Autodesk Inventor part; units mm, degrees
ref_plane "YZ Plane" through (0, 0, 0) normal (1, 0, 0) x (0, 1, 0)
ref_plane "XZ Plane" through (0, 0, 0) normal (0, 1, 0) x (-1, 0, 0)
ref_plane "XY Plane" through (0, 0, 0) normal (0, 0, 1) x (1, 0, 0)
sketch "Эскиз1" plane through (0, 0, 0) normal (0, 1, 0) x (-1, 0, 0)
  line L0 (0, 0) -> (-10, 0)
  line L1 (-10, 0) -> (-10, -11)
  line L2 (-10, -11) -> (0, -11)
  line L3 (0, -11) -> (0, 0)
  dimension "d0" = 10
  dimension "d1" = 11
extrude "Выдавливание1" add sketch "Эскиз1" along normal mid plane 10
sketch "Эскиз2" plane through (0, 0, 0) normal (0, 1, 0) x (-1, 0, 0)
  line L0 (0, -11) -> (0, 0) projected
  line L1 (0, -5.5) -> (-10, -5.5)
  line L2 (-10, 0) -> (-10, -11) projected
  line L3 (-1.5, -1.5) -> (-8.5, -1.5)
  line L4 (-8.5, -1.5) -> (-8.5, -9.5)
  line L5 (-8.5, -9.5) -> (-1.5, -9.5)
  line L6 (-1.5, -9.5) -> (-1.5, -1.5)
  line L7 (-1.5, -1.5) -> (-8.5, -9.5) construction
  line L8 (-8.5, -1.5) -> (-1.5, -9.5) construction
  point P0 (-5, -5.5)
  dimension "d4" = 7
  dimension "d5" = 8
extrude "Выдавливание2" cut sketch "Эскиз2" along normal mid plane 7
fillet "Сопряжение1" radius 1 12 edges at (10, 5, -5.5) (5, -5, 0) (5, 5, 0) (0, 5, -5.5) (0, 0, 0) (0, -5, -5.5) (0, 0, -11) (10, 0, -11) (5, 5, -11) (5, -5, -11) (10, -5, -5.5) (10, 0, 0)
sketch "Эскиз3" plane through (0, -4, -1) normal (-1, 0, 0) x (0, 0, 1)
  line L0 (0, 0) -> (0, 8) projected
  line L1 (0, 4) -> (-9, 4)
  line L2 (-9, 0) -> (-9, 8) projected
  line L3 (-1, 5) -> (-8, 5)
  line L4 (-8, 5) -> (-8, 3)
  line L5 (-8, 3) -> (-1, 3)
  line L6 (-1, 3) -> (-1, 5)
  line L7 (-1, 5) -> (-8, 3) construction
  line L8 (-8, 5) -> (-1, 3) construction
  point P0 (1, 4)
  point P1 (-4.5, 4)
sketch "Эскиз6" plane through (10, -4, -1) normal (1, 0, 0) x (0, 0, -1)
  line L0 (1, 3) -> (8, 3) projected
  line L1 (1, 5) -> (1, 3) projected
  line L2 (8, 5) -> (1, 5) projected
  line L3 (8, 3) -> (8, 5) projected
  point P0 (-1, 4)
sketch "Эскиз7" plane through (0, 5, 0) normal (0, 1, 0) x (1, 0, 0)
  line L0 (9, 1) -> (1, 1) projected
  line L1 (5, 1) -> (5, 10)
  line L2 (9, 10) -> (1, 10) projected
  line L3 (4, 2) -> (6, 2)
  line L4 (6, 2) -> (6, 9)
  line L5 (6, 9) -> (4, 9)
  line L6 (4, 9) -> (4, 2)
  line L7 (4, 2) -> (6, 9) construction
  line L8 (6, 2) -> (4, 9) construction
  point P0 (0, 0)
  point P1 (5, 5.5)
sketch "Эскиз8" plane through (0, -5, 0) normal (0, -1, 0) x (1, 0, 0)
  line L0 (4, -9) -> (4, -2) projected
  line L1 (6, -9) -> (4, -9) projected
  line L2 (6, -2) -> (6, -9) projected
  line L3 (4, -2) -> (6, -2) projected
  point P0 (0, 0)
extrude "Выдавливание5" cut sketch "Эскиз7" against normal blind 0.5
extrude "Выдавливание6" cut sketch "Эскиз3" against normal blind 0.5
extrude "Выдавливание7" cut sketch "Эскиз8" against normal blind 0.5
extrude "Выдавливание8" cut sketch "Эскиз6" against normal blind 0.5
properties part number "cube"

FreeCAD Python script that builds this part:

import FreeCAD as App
import Part
import Sketcher
from FreeCAD import Vector
Q = App.Units.Quantity


def edges_at(feature, points):
    """Names of the edges that pass closest to the given points."""
    edges = feature.Shape.Edges
    near = lambda p: min(range(len(edges)), key=lambda i: edges[i].distToShape(Part.Vertex(*p))[0])
    return sorted({f"Edge{near(p) + 1}" for p in points})


def add_polygon(sketch, points):
    """Adds a closed chain of lines whose ends are joined by coincident constraints."""
    first, n = sketch.GeometryCount, len(points)
    for a, b in zip(points, points[1:] + points[:1]):
        sketch.addGeometry(Part.LineSegment(App.Vector(*a, 0), App.Vector(*b, 0)), False)
    for i in range(n):
        sketch.addConstraint(Sketcher.Constraint("Coincident", first + i, 2, first + (i + 1) % n, 1))

doc = App.newDocument("Part")
body = doc.addObject("PartDesign::Body", "Body")

# Sketch on XZ plane
sketch1 = doc.addObject("Sketcher::SketchObject", "Sketch")
body.addObject(sketch1)
sketch1.AttachmentSupport = (doc.XZ_Plane, [""])
sketch1.MapMode = "FlatFace"
add_polygon(sketch1, [(0, -11), (0, 0), (10, 0), (10, -11)])  # lines 0-3
sketch1.addConstraint(Sketcher.Constraint("Vertical", 0))
sketch1.addConstraint(Sketcher.Constraint("Horizontal", 1))
sketch1.addConstraint(Sketcher.Constraint("Vertical", 2))
sketch1.addConstraint(Sketcher.Constraint("Horizontal", 3))
sketch1.addConstraint(Sketcher.Constraint("Coincident", 0, 2, -1, 1))
sketch1.addConstraint(Sketcher.Constraint("DistanceX", 1, 1, 1, 2, Q("10 mm")))
sketch1.addConstraint(Sketcher.Constraint("DistanceY", 0, 1, 0, 2, Q("11 mm")))
pad1 = doc.addObject("PartDesign::Pad", "Pad")
body.addObject(pad1)
pad1.Profile = sketch1
pad1.Length = 10
pad1.Midplane = True

# Sketch on XZ plane
sketch2 = doc.addObject("Sketcher::SketchObject", "Sketch001")
body.addObject(sketch2)
sketch2.AttachmentSupport = (doc.XZ_Plane, [""])
sketch2.MapMode = "FlatFace"
add_polygon(sketch2, [(2, -10), (2, -2), (8, -2), (8, -10)])  # lines 0-3
sketch2.addConstraint(Sketcher.Constraint("Vertical", 0))
sketch2.addConstraint(Sketcher.Constraint("Horizontal", 1))
sketch2.addConstraint(Sketcher.Constraint("Vertical", 2))
sketch2.addConstraint(Sketcher.Constraint("Horizontal", 3))
sketch2.addConstraint(Sketcher.Constraint("DistanceX", 1, 1, 1, 2, Q("7 mm")))
sketch2.addConstraint(Sketcher.Constraint("DistanceY", 0, 1, 0, 2, Q("8 mm")))
sketch2.addConstraint(Sketcher.Constraint("DistanceX", -1, 1, 0, 2, Q("1.5 mm")))
sketch2.addConstraint(Sketcher.Constraint("DistanceY", 0, 2, -1, 1, Q("1.5 mm")))
pocket1 = doc.addObject("PartDesign::Pocket", "Pocket")
body.addObject(pocket1)
pocket1.Profile = sketch2
pocket1.Length = 7
pocket1.Midplane = True
doc.recompute()

fillet = doc.addObject("PartDesign::Fillet", "Fillet")
body.addObject(fillet)
fillet.Base = (pocket1, edges_at(pocket1, [
    (10, 5, -5.5),
    (5, -5, 0),
    (5, 5, 0),
    (0, 5, -5.5),
    (0, 0, 0),
    (0, -5, -5.5),
    (0, 0, -11),
    (10, 0, -11),
    (5, 5, -11),
    (5, -5, -11),
    (10, -5, -5.5),
    (10, 0, 0),
]))
fillet.Radius = 1

# Sketch on XZ plane
sketch3 = doc.addObject("Sketcher::SketchObject", "Sketch002")
body.addObject(sketch3)
sketch3.AttachmentSupport = (doc.XZ_Plane, [""])
sketch3.MapMode = "FlatFace"
sketch3.AttachmentOffset = App.Placement(Vector(0, 0, -5), App.Rotation())
add_polygon(sketch3, [(4, -2), (6, -2), (6, -9), (4, -9)])  # lines 0-3
sketch3.addConstraint(Sketcher.Constraint("Horizontal", 0))
sketch3.addConstraint(Sketcher.Constraint("Vertical", 1))
sketch3.addConstraint(Sketcher.Constraint("Horizontal", 2))
sketch3.addConstraint(Sketcher.Constraint("Vertical", 3))
sketch3.addConstraint(Sketcher.Constraint("DistanceX", 0, 1, 0, 2, Q("2 mm")))
sketch3.addConstraint(Sketcher.Constraint("DistanceY", 1, 2, 1, 1, Q("7 mm")))
sketch3.addConstraint(Sketcher.Constraint("DistanceX", -1, 1, 0, 2, Q("6 mm")))
sketch3.addConstraint(Sketcher.Constraint("DistanceY", 0, 2, -1, 1, Q("2 mm")))
pocket2 = doc.addObject("PartDesign::Pocket", "Pocket001")
body.addObject(pocket2)
pocket2.Profile = sketch3
pocket2.Length = 0.5
pocket2.Reversed = True

# Sketch on YZ plane
sketch4 = doc.addObject("Sketcher::SketchObject", "Sketch003")
body.addObject(sketch4)
sketch4.AttachmentSupport = (doc.YZ_Plane, [""])
sketch4.MapMode = "FlatFace"
add_polygon(sketch4, [(-1, -2), (1, -2), (1, -9), (-1, -9)])  # lines 0-3
sketch4.addConstraint(Sketcher.Constraint("Horizontal", 0))
sketch4.addConstraint(Sketcher.Constraint("Vertical", 1))
sketch4.addConstraint(Sketcher.Constraint("Horizontal", 2))
sketch4.addConstraint(Sketcher.Constraint("Vertical", 3))
sketch4.addConstraint(Sketcher.Constraint("DistanceX", 0, 1, 0, 2, Q("2 mm")))
sketch4.addConstraint(Sketcher.Constraint("DistanceY", 1, 2, 1, 1, Q("7 mm")))
sketch4.addConstraint(Sketcher.Constraint("DistanceX", -1, 1, 0, 2, Q("1 mm")))
sketch4.addConstraint(Sketcher.Constraint("DistanceY", 0, 2, -1, 1, Q("2 mm")))
pocket3 = doc.addObject("PartDesign::Pocket", "Pocket002")
body.addObject(pocket3)
pocket3.Profile = sketch4
pocket3.Length = 0.5
pocket3.Reversed = True

# Sketch on XZ plane
sketch5 = doc.addObject("Sketcher::SketchObject", "Sketch004")
body.addObject(sketch5)
sketch5.AttachmentSupport = (doc.XZ_Plane, [""])
sketch5.MapMode = "FlatFace"
sketch5.AttachmentOffset = App.Placement(Vector(0, 0, 5), App.Rotation())
add_polygon(sketch5, [(4, -2), (4, -9), (6, -9), (6, -2)])  # lines 0-3
sketch5.addConstraint(Sketcher.Constraint("Vertical", 0))
sketch5.addConstraint(Sketcher.Constraint("Horizontal", 1))
sketch5.addConstraint(Sketcher.Constraint("Vertical", 2))
sketch5.addConstraint(Sketcher.Constraint("Horizontal", 3))
sketch5.addConstraint(Sketcher.Constraint("DistanceX", 1, 1, 1, 2, Q("2 mm")))
sketch5.addConstraint(Sketcher.Constraint("DistanceY", 0, 2, 0, 1, Q("7 mm")))
sketch5.addConstraint(Sketcher.Constraint("DistanceX", -1, 1, 0, 2, Q("4 mm")))
sketch5.addConstraint(Sketcher.Constraint("DistanceY", 0, 2, -1, 1, Q("9 mm")))
pocket4 = doc.addObject("PartDesign::Pocket", "Pocket003")
body.addObject(pocket4)
pocket4.Profile = sketch5
pocket4.Length = 0.5

# Sketch on YZ plane
sketch6 = doc.addObject("Sketcher::SketchObject", "Sketch005")
body.addObject(sketch6)
sketch6.AttachmentSupport = (doc.YZ_Plane, [""])
sketch6.MapMode = "FlatFace"
sketch6.AttachmentOffset = App.Placement(Vector(0, 0, 10), App.Rotation())
add_polygon(sketch6, [(1, -2), (-1, -2), (-1, -9), (1, -9)])  # lines 0-3
sketch6.addConstraint(Sketcher.Constraint("Horizontal", 0))
sketch6.addConstraint(Sketcher.Constraint("Vertical", 1))
sketch6.addConstraint(Sketcher.Constraint("Horizontal", 2))
sketch6.addConstraint(Sketcher.Constraint("Vertical", 3))
sketch6.addConstraint(Sketcher.Constraint("DistanceX", 0, 2, 0, 1, Q("2 mm")))
sketch6.addConstraint(Sketcher.Constraint("DistanceY", 1, 2, 1, 1, Q("7 mm")))
sketch6.addConstraint(Sketcher.Constraint("DistanceX", 0, 2, -1, 1, Q("1 mm")))
sketch6.addConstraint(Sketcher.Constraint("DistanceY", 0, 2, -1, 1, Q("2 mm")))
pocket5 = doc.addObject("PartDesign::Pocket", "Pocket004")
body.addObject(pocket5)
pocket5.Profile = sketch6
pocket5.Length = 0.5

doc.recompute()
